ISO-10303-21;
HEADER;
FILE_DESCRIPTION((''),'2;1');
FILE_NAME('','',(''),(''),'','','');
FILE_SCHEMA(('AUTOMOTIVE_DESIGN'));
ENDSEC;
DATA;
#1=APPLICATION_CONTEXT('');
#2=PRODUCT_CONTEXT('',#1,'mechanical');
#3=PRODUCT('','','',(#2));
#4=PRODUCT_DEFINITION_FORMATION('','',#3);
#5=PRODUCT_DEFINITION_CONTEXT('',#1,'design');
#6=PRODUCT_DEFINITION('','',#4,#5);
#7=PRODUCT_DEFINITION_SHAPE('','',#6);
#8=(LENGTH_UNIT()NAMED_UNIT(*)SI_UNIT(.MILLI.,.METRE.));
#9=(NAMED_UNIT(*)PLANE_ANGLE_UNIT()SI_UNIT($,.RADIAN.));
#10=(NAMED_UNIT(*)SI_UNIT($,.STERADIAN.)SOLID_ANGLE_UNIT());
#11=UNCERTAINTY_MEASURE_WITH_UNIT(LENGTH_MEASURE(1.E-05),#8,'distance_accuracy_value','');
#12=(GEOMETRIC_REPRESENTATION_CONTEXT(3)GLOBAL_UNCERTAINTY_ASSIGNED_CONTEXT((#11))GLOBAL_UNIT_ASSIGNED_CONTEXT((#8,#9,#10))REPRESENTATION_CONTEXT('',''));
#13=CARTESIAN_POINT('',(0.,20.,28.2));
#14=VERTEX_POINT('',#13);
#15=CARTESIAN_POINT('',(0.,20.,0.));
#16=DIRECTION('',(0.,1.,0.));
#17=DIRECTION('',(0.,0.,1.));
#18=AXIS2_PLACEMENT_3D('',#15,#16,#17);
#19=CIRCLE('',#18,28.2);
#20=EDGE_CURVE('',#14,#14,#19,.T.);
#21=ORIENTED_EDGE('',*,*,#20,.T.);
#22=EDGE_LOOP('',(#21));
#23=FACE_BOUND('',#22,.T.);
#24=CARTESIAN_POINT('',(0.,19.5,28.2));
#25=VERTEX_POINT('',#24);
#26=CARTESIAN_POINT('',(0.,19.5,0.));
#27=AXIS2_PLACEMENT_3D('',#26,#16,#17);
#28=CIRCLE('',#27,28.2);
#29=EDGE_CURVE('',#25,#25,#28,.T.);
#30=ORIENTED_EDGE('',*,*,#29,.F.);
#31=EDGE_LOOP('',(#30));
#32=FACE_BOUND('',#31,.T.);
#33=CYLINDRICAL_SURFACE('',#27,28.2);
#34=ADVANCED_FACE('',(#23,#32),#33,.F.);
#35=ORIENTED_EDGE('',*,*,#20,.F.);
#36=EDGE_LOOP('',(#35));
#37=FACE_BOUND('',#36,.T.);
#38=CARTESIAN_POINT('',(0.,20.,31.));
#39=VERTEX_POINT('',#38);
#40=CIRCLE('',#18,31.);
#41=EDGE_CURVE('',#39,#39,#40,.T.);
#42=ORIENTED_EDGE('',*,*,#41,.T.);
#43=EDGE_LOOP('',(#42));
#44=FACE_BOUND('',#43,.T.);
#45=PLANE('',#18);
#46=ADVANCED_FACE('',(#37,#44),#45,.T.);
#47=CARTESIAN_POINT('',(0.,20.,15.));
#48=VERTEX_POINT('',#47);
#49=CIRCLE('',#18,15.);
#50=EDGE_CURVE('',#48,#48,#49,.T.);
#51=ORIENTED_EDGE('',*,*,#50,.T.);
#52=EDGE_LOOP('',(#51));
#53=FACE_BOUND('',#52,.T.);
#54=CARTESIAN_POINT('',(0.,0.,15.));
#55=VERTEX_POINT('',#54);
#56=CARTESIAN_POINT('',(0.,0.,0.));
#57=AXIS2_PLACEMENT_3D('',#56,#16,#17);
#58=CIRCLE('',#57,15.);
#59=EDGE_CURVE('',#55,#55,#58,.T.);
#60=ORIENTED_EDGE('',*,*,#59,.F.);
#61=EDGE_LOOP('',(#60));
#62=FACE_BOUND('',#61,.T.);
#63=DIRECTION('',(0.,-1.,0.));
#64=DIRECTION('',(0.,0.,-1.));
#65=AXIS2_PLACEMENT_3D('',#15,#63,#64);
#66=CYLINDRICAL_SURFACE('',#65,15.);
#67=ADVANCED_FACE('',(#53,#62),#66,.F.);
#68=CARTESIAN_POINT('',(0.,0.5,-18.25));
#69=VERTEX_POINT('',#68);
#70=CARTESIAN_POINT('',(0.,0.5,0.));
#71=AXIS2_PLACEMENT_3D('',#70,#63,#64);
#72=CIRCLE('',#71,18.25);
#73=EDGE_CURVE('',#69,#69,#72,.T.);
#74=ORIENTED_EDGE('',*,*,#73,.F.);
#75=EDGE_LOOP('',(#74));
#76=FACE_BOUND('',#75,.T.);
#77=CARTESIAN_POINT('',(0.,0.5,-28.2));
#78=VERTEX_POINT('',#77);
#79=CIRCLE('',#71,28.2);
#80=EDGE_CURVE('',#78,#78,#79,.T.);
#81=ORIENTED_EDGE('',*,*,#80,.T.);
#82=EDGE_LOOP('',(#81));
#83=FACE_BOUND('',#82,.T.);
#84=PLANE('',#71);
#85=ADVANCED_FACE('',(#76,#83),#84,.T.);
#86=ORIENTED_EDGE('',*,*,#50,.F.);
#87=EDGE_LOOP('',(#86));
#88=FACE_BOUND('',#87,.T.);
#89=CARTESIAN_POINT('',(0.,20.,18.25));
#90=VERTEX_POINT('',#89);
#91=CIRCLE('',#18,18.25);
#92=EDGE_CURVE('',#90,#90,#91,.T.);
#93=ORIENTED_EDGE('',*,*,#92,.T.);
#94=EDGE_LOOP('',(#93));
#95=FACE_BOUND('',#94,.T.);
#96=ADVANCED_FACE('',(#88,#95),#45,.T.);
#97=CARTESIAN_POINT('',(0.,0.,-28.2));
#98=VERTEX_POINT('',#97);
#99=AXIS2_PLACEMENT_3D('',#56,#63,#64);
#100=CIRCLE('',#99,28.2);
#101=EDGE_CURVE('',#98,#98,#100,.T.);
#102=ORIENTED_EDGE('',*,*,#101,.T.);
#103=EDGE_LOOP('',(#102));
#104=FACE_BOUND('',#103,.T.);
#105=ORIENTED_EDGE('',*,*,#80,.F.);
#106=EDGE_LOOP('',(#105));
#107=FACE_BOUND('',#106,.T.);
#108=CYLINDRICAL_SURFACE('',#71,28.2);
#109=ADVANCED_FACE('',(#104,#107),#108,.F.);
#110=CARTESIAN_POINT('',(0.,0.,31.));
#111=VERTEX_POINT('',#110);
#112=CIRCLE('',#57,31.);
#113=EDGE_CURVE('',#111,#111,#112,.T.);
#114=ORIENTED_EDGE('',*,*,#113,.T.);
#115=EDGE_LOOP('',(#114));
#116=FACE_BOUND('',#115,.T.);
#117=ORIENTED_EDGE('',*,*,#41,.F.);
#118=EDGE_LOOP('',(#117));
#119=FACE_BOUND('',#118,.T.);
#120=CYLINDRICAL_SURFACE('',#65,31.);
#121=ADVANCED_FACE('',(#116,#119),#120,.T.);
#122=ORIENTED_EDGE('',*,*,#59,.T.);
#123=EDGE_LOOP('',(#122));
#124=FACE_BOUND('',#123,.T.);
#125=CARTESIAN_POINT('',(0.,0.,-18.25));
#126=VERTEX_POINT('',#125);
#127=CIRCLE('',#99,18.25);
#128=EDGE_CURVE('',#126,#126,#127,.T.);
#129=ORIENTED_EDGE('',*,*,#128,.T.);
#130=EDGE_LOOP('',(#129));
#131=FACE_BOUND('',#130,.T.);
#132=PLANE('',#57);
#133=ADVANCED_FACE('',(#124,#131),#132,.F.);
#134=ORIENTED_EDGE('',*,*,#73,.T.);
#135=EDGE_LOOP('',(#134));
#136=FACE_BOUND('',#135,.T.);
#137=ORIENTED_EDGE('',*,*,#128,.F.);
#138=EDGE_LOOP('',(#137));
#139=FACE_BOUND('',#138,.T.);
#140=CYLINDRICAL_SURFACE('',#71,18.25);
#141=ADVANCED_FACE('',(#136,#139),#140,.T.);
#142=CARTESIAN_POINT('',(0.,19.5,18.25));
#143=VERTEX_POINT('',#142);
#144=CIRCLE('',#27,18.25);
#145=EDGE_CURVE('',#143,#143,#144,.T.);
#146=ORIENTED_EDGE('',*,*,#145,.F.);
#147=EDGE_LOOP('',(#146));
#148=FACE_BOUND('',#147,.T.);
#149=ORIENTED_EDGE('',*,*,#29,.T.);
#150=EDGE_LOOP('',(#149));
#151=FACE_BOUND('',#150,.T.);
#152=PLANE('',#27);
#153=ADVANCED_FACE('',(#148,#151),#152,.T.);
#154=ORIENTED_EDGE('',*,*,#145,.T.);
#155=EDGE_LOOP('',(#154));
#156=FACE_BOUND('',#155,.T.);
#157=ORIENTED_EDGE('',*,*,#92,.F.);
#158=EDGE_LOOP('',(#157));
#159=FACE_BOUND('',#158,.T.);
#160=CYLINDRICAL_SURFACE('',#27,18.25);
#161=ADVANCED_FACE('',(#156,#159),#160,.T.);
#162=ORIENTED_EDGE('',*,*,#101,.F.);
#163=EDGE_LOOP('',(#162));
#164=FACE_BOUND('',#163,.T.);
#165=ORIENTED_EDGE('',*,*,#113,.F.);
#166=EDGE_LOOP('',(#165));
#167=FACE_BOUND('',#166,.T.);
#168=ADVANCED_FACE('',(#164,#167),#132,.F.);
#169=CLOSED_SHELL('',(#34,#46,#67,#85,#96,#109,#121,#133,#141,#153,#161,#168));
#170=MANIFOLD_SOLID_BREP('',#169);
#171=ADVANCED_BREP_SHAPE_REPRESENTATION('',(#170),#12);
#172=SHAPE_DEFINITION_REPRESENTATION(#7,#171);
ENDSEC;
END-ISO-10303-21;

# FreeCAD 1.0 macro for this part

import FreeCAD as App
import Part
import Sketcher

V = App.Vector
Q = App.Units.Quantity

doc = App.newDocument("Part")
body = doc.addObject("PartDesign::Body", "Body")

# Sketch on XZ plane
sketch1 = body.newObject("Sketcher::SketchObject", "Sketch")
sketch1.AttachmentSupport = (doc.getObject("XZ_Plane"), [""])
sketch1.MapMode = "FlatFace"
sketch1.addGeometry([
    Part.Circle(V(0, 0, 0), V(0, 0, 1), 31),
    Part.Circle(V(0, 0, 0), V(0, 0, 1), 15),
], False)
sketch1.addConstraint([
    Sketcher.Constraint("Coincident", 0, 3, -1, 1),
    Sketcher.Constraint("Coincident", 1, 3, -1, 1),
    Sketcher.Constraint("Diameter", 0, Q("62 mm")),
    Sketcher.Constraint("Diameter", 1, Q("30 mm")),
])
pad1 = body.newObject("PartDesign::Pad", "Pad")
pad1.Profile = sketch1
pad1.Length = 20
pad1.Reversed = True

# Sketch on XZ plane
sketch2 = body.newObject("Sketcher::SketchObject", "Sketch001")
sketch2.AttachmentSupport = (doc.getObject("XZ_Plane"), [""])
sketch2.MapMode = "FlatFace"
sketch2.AttachmentOffset = App.Placement(V(0, 0, -20), App.Rotation())
sketch2.addGeometry([
    Part.Circle(V(0, 0, 0), V(0, 0, 1), 28),
    Part.Circle(V(0, 0, 0), V(0, 0, 1), 18),
], False)
sketch2.addConstraint([
    Sketcher.Constraint("Coincident", 0, 3, -1, 1),
    Sketcher.Constraint("Coincident", 1, 3, -1, 1),
    Sketcher.Constraint("Diameter", 0, Q("56.4 mm")),
    Sketcher.Constraint("Diameter", 1, Q("36.5 mm")),
])
pocket1 = body.newObject("PartDesign::Pocket", "Pocket")
pocket1.Profile = sketch2
pocket1.Length = 0.5
pocket1.Reversed = True

# Sketch on XZ plane
sketch3 = body.newObject("Sketcher::SketchObject", "Sketch002")
sketch3.AttachmentSupport = (doc.getObject("XZ_Plane"), [""])
sketch3.MapMode = "FlatFace"
sketch3.addGeometry([
    Part.Circle(V(0, 0, 0), V(0, 0, 1), 28),
    Part.Circle(V(0, 0, 0), V(0, 0, 1), 18),
], False)
sketch3.addConstraint([
    Sketcher.Constraint("Coincident", 0, 3, -1, 1),
    Sketcher.Constraint("Coincident", 1, 3, -1, 1),
    Sketcher.Constraint("Diameter", 0, Q("56.4 mm")),
    Sketcher.Constraint("Diameter", 1, Q("36.5 mm")),
])
pocket2 = body.newObject("PartDesign::Pocket", "Pocket001")
pocket2.Profile = sketch3
pocket2.Length = 0.5

doc.recompute()
